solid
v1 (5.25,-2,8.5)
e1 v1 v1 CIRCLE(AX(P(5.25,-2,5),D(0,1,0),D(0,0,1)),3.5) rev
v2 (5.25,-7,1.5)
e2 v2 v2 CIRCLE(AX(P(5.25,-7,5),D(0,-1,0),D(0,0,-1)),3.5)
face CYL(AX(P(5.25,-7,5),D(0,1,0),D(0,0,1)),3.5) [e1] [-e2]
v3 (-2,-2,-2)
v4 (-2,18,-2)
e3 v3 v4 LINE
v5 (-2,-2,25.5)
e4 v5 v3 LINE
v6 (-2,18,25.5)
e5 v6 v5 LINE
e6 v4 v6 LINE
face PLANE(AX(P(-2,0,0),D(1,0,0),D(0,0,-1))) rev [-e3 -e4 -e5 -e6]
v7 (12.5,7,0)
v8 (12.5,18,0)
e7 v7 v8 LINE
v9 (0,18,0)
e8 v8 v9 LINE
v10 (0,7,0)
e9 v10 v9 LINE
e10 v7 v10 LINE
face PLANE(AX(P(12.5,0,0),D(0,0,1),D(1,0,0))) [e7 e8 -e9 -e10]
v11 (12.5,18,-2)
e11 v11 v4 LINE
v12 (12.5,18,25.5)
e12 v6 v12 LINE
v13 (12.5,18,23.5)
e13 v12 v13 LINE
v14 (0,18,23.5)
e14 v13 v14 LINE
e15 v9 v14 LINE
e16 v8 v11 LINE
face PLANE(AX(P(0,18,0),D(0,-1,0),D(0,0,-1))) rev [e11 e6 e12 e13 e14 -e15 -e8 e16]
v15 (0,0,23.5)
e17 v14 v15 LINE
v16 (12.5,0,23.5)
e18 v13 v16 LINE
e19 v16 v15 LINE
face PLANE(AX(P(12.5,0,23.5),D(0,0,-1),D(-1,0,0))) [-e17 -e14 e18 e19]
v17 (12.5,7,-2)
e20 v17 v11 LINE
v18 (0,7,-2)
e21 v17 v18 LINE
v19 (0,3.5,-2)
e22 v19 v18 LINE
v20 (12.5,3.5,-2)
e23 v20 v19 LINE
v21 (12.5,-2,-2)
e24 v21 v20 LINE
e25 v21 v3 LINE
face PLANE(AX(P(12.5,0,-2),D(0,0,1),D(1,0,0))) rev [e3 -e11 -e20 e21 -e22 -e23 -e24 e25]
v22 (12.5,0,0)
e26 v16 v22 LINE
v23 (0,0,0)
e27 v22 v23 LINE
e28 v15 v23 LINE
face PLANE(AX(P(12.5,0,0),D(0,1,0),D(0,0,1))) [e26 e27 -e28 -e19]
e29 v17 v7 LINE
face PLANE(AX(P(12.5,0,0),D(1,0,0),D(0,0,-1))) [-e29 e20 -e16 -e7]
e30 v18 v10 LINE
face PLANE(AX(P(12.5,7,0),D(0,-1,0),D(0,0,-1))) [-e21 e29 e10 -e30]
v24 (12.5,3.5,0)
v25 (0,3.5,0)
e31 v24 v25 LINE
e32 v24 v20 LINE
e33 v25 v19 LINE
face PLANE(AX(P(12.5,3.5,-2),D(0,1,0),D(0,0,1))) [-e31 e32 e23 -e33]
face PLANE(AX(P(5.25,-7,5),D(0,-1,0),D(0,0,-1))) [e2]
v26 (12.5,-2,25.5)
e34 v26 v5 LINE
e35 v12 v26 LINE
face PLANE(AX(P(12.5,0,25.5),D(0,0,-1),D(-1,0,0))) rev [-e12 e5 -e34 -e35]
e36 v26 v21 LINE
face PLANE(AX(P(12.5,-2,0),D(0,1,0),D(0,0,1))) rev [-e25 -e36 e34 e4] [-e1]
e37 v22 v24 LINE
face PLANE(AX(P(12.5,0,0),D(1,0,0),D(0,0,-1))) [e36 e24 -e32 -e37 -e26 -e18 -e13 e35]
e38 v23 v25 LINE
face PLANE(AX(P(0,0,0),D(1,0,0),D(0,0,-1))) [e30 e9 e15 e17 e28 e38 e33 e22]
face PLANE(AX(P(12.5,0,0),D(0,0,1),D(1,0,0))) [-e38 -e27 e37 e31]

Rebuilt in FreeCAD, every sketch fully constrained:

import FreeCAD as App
import Part
import Sketcher
from FreeCAD import Vector


def faces_at(feature, points):
    """Names of the faces that lie closest to the given points."""
    faces = feature.Shape.Faces
    near = lambda p: min(range(len(faces)), key=lambda i: faces[i].distToShape(Part.Vertex(*p))[0])
    return sorted({f"Face{near(p) + 1}" for p in points})


def add_polygon(sketch, points):
    """Adds a closed chain of lines whose ends are joined by coincident constraints."""
    first, n = sketch.GeometryCount, len(points)
    for a, b in zip(points, points[1:] + points[:1]):
        sketch.addGeometry(Part.LineSegment(App.Vector(*a, 0), App.Vector(*b, 0)), False)
    for i in range(n):
        sketch.addConstraint(Sketcher.Constraint("Coincident", first + i, 2, first + (i + 1) % n, 1))

doc = App.newDocument("Part")
body = doc.addObject("PartDesign::Body", "Body")

# Sketch on YZ plane
sketch1 = body.newObject("Sketcher::SketchObject", "Sketch")
sketch1.AttachmentSupport = (doc.getObject("YZ_Plane"), [""])
sketch1.MapMode = "FlatFace"
add_polygon(sketch1, [(18, 24), (0, 24), (0, 0), (18, 0)])  # lines 0-3
sketch1.addConstraint(Sketcher.Constraint("Horizontal", 0))
sketch1.addConstraint(Sketcher.Constraint("Vertical", 1))
sketch1.addConstraint(Sketcher.Constraint("Horizontal", 2))
sketch1.addConstraint(Sketcher.Constraint("Vertical", 3))
sketch1.addConstraint(Sketcher.Constraint("Coincident", 1, 2, -1, 1))
sketch1.addConstraint(Sketcher.Constraint("DistanceX", 0, 2, 0, 1, 18.0))
sketch1.addConstraint(Sketcher.Constraint("DistanceY", 1, 2, 1, 1, 23.5))
pad1 = body.newObject("PartDesign::Pad", "Pad")
pad1.Profile = sketch1
pad1.Length = 12.5
doc.recompute()

thickness = body.newObject("PartDesign::Thickness", "Thickness")
thickness.Base = (pad1, faces_at(pad1, [(12.5, 9, 11.75)]))
thickness.Value = 2
thickness.Reversed = False
thickness.Join = "Intersection"

# Sketch on YZ plane
sketch2 = body.newObject("Sketcher::SketchObject", "Sketch001")
sketch2.AttachmentSupport = (doc.getObject("YZ_Plane"), [""])
sketch2.MapMode = "FlatFace"
add_polygon(sketch2, [(7, 0), (3.5, 0), (3.5, -2), (7, -2)])  # lines 0-3
sketch2.addConstraint(Sketcher.Constraint("Horizontal", 0))
sketch2.addConstraint(Sketcher.Constraint("Vertical", 1))
sketch2.addConstraint(Sketcher.Constraint("Horizontal", 2))
sketch2.addConstraint(Sketcher.Constraint("Vertical", 3))
sketch2.addConstraint(Sketcher.Constraint("PointOnObject", 0, 2, -1))
sketch2.addConstraint(Sketcher.Constraint("DistanceY", 1, 2, 1, 1, 2.0))
sketch2.addConstraint(Sketcher.Constraint("DistanceX", 0, 2, 0, 1, 3.5))
sketch2.addConstraint(Sketcher.Constraint("DistanceX", -1, 1, 2, 2, 7.0))
pocket1 = body.newObject("PartDesign::Pocket", "Pocket")
pocket1.Profile = sketch2
pocket1.Type = "ThroughAll"
pocket1.Reversed = True

# Sketch on XZ plane
sketch3 = body.newObject("Sketcher::SketchObject", "Sketch002")
sketch3.AttachmentSupport = (doc.getObject("XZ_Plane"), [""])
sketch3.MapMode = "FlatFace"
sketch3.AttachmentOffset = App.Placement(Vector(0, 0, -20), App.Rotation())
add_polygon(sketch3, [(-2, -2), (-2, 26), (13, 26), (13, -2)])  # lines 0-3
sketch3.addConstraint(Sketcher.Constraint("Vertical", 0))
sketch3.addConstraint(Sketcher.Constraint("Horizontal", 1))
sketch3.addConstraint(Sketcher.Constraint("Vertical", 2))
sketch3.addConstraint(Sketcher.Constraint("Horizontal", 3))
sketch3.addConstraint(Sketcher.Constraint("DistanceY", 0, 1, 0, 2, 27.5))
sketch3.addConstraint(Sketcher.Constraint("DistanceX", 0, 2, -1, 1, 2.0))
sketch3.addConstraint(Sketcher.Constraint("DistanceY", 2, 2, -1, 1, 2.0))
sketch3.addConstraint(Sketcher.Constraint("DistanceX", 1, 1, 1, 2, 14.567673))
pocket2 = body.newObject("PartDesign::Pocket", "Pocket001")
pocket2.Profile = sketch3
pocket2.Length = 2
pocket2.Reversed = True

# Sketch on XZ plane
sketch4 = body.newObject("Sketcher::SketchObject", "Sketch003")
sketch4.AttachmentSupport = (doc.getObject("XZ_Plane"), [""])
sketch4.MapMode = "FlatFace"
sketch4.AttachmentOffset = App.Placement(Vector(0, 0, 2), App.Rotation())
sketch4.addGeometry(Part.Circle(Vector(5.2, 5, 0), Vector(0, 0, 1), 3.5), False)
sketch4.addConstraint(Sketcher.Constraint("Diameter", 0, 7.0))
sketch4.addConstraint(Sketcher.Constraint("DistanceY", -1, 1, 0, 3, 5.0))
sketch4.addConstraint(Sketcher.Constraint("DistanceX", -1, 1, 0, 3, 5.25))
pad2 = body.newObject("PartDesign::Pad", "Pad001")
pad2.Profile = sketch4
pad2.Length = 5

doc.recompute()
